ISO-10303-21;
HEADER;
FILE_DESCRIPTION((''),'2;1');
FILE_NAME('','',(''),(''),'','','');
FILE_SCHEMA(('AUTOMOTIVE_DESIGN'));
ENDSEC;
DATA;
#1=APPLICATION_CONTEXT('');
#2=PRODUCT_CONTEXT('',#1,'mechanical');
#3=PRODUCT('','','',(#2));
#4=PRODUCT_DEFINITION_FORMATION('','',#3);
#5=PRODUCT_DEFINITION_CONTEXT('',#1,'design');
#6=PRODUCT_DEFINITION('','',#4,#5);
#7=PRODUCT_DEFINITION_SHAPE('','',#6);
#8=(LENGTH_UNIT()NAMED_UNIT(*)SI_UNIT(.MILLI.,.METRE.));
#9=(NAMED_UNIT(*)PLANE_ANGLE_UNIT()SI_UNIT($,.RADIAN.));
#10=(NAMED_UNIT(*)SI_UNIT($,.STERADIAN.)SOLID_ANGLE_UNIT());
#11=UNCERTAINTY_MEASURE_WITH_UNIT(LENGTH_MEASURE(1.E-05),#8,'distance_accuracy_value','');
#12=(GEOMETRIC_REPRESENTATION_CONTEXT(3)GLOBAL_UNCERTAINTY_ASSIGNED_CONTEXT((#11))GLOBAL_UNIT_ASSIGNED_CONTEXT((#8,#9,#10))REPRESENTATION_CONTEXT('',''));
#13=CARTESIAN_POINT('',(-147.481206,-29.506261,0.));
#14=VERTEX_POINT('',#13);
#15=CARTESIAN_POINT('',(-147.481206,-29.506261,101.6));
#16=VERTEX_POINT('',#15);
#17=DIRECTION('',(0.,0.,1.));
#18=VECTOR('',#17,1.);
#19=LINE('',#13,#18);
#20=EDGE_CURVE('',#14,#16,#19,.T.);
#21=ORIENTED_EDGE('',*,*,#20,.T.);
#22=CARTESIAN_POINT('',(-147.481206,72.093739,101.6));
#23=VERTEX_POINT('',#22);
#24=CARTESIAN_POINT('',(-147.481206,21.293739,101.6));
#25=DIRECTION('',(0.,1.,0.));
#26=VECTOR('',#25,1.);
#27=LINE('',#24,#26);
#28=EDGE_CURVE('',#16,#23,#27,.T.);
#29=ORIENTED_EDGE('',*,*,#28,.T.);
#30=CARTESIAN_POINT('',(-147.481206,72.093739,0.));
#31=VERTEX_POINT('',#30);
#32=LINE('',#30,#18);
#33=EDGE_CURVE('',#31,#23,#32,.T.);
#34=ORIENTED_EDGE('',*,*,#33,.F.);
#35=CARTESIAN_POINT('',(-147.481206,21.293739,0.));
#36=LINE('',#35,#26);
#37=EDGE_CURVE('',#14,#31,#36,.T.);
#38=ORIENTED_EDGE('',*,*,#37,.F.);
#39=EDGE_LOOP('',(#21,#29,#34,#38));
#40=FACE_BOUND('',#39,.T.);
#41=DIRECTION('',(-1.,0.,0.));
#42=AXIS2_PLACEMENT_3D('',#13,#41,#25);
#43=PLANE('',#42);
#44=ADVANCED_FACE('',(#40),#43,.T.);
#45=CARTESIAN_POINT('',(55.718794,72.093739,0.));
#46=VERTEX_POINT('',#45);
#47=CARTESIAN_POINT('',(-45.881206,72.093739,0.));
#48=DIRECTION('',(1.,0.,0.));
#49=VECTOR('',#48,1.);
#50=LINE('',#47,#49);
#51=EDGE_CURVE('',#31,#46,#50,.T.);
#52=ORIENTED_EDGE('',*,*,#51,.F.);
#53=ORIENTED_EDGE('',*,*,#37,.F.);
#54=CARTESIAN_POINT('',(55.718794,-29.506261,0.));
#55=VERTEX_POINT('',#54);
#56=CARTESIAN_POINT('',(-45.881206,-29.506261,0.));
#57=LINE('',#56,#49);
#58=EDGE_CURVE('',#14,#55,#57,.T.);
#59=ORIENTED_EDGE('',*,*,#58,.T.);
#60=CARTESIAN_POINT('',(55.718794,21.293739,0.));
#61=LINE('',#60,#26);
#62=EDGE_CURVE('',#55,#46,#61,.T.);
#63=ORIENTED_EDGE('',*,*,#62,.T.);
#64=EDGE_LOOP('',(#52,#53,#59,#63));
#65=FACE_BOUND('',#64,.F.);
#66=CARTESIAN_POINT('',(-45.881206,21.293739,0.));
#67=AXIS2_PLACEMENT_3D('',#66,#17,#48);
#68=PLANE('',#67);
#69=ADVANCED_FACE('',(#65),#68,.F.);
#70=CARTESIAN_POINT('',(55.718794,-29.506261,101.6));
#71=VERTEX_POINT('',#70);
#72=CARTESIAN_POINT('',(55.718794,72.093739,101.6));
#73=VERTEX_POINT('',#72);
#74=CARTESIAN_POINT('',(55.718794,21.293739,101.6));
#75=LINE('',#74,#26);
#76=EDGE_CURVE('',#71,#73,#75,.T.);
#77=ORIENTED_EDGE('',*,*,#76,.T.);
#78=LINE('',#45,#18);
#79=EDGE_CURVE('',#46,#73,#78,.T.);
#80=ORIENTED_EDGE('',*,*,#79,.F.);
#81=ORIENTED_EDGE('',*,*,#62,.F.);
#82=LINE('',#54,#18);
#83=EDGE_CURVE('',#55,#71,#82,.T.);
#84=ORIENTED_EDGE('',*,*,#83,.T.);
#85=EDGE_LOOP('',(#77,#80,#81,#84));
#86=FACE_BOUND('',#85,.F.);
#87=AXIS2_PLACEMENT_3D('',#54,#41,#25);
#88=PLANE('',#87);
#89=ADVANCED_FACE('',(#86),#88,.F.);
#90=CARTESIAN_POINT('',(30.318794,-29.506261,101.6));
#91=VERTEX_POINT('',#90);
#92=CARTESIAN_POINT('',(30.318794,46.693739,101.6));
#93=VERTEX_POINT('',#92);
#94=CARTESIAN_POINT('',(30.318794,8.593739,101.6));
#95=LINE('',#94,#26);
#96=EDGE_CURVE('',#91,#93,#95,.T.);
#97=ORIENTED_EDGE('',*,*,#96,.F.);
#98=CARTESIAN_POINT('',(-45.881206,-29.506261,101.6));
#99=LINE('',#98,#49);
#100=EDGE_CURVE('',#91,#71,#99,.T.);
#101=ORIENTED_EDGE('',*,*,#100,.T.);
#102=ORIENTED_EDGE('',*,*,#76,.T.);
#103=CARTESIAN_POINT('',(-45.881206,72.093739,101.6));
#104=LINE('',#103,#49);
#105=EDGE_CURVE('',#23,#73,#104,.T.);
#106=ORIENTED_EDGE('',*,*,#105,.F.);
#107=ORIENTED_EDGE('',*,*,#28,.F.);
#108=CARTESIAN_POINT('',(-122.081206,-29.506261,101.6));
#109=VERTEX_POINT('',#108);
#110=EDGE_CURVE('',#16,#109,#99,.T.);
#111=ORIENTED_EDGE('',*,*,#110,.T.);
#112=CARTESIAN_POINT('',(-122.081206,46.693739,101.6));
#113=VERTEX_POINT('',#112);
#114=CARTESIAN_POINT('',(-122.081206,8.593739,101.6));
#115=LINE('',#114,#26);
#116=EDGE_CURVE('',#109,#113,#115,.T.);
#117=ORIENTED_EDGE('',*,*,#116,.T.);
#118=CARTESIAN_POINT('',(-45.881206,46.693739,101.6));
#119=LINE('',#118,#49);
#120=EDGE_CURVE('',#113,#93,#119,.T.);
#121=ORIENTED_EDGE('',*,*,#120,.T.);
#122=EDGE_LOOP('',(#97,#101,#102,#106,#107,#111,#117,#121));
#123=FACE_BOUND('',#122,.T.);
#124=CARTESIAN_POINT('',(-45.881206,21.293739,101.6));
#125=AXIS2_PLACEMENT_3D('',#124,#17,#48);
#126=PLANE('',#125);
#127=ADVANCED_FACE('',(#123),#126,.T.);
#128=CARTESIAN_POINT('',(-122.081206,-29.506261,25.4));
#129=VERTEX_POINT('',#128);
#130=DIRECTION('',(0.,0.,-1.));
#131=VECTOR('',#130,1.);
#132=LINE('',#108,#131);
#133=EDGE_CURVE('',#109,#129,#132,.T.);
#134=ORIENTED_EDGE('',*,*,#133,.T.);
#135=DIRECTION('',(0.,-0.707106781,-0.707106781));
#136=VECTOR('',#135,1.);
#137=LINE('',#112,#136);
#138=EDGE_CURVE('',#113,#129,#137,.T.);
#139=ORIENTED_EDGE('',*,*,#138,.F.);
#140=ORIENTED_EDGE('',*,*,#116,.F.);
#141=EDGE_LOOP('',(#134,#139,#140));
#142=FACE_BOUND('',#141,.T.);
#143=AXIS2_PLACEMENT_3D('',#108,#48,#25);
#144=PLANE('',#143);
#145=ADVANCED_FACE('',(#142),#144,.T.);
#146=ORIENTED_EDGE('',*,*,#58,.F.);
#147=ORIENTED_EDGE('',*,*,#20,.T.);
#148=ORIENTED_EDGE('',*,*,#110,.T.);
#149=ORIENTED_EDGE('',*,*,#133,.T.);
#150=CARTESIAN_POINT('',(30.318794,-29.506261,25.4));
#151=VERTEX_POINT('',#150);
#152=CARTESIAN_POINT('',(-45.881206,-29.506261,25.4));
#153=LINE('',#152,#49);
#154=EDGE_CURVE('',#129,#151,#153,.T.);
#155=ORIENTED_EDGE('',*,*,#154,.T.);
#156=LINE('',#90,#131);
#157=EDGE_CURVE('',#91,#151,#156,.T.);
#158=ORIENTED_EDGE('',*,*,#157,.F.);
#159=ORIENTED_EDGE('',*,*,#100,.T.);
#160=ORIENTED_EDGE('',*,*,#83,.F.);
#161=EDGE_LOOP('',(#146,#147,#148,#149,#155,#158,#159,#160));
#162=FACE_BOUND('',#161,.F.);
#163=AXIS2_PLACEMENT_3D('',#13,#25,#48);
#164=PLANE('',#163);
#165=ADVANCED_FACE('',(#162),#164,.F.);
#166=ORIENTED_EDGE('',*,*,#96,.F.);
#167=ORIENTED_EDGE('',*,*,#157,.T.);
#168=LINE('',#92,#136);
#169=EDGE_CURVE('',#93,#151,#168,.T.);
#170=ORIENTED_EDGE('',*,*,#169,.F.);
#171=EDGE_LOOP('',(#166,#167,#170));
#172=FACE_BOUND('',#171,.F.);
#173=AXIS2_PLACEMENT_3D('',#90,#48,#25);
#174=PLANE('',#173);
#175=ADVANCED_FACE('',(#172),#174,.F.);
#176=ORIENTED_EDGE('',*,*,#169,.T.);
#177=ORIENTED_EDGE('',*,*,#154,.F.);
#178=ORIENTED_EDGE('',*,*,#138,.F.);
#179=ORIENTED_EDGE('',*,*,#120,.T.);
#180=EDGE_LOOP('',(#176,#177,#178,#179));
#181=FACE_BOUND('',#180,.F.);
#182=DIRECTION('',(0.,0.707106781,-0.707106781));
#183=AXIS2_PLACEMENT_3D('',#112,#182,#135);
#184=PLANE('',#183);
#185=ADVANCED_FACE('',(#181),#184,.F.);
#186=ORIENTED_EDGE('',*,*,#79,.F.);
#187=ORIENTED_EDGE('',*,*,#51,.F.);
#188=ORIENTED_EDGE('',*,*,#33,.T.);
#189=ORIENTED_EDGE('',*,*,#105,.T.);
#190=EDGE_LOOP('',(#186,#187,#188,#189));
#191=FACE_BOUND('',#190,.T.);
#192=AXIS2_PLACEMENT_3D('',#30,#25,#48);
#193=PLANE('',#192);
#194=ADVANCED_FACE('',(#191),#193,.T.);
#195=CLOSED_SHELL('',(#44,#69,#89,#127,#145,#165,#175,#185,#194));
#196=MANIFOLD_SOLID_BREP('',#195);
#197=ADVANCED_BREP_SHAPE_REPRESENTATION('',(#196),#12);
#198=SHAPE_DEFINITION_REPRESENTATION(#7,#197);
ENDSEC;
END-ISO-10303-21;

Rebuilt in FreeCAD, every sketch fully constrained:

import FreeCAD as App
import Part
import Sketcher
Q = App.Units.Quantity

doc = App.newDocument("Part")
body = doc.addObject("PartDesign::Body", "Body")

# Sketch on XY plane
sketch1 = doc.addObject("Sketcher::SketchObject", "Sketch")
body.addObject(sketch1)
sketch1.AttachmentSupport = (doc.XY_Plane, [""])
sketch1.MapMode = "FlatFace"
sketch1.addGeometry([
    Part.LineSegment(App.Vector(-147, 72, 0), App.Vector(-147, -30, 0)),
    Part.LineSegment(App.Vector(-147, -30, 0), App.Vector(56, -30, 0)),
    Part.LineSegment(App.Vector(56, -30, 0), App.Vector(56, 72, 0)),
    Part.LineSegment(App.Vector(56, 72, 0), App.Vector(-147, 72, 0)),
], False)
sketch1.addConstraint([
    Sketcher.Constraint("Coincident", 0, 2, 1, 1),
    Sketcher.Constraint("Coincident", 1, 2, 2, 1),
    Sketcher.Constraint("Coincident", 2, 2, 3, 1),
    Sketcher.Constraint("Coincident", 3, 2, 0, 1),
    Sketcher.Constraint("Vertical", 0),
    Sketcher.Constraint("Horizontal", 1),
    Sketcher.Constraint("Vertical", 2),
    Sketcher.Constraint("Horizontal", 3),
    Sketcher.Constraint("DistanceX", 1, 1, 1, 2, Q("8 in")),
    Sketcher.Constraint("DistanceY", 0, 2, 0, 1, Q("4 in")),
    Sketcher.Constraint("DistanceY", 0, 2, -1, 1, Q("29.506261 mm")),
    Sketcher.Constraint("DistanceX", 0, 2, -1, 1, Q("147.481206 mm")),
])
pad1 = doc.addObject("PartDesign::Pad", "Pad")
body.addObject(pad1)
pad1.Profile = sketch1
pad1.Length = Q("4 in")

# Sketch on XY plane
sketch2 = doc.addObject("Sketcher::SketchObject", "Sketch001")
body.addObject(sketch2)
sketch2.AttachmentSupport = (doc.XY_Plane, [""])
sketch2.MapMode = "FlatFace"
sketch2.AttachmentOffset = App.Placement(App.Vector(0, 0, 4 * 25.4), App.Rotation())
sketch2.addGeometry([
    Part.LineSegment(App.Vector(-122, 47, 0), App.Vector(-122, -30, 0)),
    Part.LineSegment(App.Vector(-122, -30, 0), App.Vector(30, -30, 0)),
    Part.LineSegment(App.Vector(30, -30, 0), App.Vector(30, 47, 0)),
    Part.LineSegment(App.Vector(30, 47, 0), App.Vector(-122, 47, 0)),
], False)
sketch2.addConstraint([
    Sketcher.Constraint("Coincident", 0, 2, 1, 1),
    Sketcher.Constraint("Coincident", 1, 2, 2, 1),
    Sketcher.Constraint("Coincident", 2, 2, 3, 1),
    Sketcher.Constraint("Coincident", 3, 2, 0, 1),
    Sketcher.Constraint("Vertical", 0),
    Sketcher.Constraint("Horizontal", 1),
    Sketcher.Constraint("Vertical", 2),
    Sketcher.Constraint("Horizontal", 3),
    Sketcher.Constraint("DistanceX", 1, 1, 1, 2, Q("6 in")),
    Sketcher.Constraint("DistanceY", 0, 2, 0, 1, Q("3 in")),
    Sketcher.Constraint("DistanceY", 0, 2, -1, 1, Q("29.506261 mm")),
    Sketcher.Constraint("DistanceX", 0, 2, -1, 1, Q("122.081206 mm")),
])
pocket1 = doc.addObject("PartDesign::Pocket", "Pocket")
body.addObject(pocket1)
pocket1.Profile = sketch2
pocket1.Length = Q("3 in")

# Sketch on YZ plane
sketch3 = doc.addObject("Sketcher::SketchObject", "Sketch002")
body.addObject(sketch3)
sketch3.AttachmentSupport = (doc.YZ_Plane, [""])
sketch3.MapMode = "FlatFace"
sketch3.AttachmentOffset = App.Placement(App.Vector(0, 0, -122.081206), App.Rotation())
sketch3.addGeometry([
    Part.LineSegment(App.Vector(47, 25, 0), App.Vector(47, 102, 0)),
    Part.LineSegment(App.Vector(47, 102, 0), App.Vector(-30, 25, 0)),
    Part.LineSegment(App.Vector(-30, 25, 0), App.Vector(47, 25, 0)),
], False)
sketch3.addConstraint([
    Sketcher.Constraint("Coincident", 0, 2, 1, 1),
    Sketcher.Constraint("Coincident", 1, 2, 2, 1),
    Sketcher.Constraint("Coincident", 2, 2, 0, 1),
    Sketcher.Constraint("Vertical", 0),
    Sketcher.Constraint("Horizontal", 2),
    Sketcher.Constraint("Equal", 2, 0),
    Sketcher.Constraint("DistanceX", 2, 1, 2, 2, Q("3 in")),
    Sketcher.Constraint("DistanceY", -1, 1, 0, 2, Q("4 in")),
    Sketcher.Constraint("DistanceX", -1, 1, 0, 2, Q("46.693739 mm")),
])
pad2 = doc.addObject("PartDesign::Pad", "Pad001")
body.addObject(pad2)
pad2.Profile = sketch3
pad2.Length = Q("6 in")

doc.recompute()
